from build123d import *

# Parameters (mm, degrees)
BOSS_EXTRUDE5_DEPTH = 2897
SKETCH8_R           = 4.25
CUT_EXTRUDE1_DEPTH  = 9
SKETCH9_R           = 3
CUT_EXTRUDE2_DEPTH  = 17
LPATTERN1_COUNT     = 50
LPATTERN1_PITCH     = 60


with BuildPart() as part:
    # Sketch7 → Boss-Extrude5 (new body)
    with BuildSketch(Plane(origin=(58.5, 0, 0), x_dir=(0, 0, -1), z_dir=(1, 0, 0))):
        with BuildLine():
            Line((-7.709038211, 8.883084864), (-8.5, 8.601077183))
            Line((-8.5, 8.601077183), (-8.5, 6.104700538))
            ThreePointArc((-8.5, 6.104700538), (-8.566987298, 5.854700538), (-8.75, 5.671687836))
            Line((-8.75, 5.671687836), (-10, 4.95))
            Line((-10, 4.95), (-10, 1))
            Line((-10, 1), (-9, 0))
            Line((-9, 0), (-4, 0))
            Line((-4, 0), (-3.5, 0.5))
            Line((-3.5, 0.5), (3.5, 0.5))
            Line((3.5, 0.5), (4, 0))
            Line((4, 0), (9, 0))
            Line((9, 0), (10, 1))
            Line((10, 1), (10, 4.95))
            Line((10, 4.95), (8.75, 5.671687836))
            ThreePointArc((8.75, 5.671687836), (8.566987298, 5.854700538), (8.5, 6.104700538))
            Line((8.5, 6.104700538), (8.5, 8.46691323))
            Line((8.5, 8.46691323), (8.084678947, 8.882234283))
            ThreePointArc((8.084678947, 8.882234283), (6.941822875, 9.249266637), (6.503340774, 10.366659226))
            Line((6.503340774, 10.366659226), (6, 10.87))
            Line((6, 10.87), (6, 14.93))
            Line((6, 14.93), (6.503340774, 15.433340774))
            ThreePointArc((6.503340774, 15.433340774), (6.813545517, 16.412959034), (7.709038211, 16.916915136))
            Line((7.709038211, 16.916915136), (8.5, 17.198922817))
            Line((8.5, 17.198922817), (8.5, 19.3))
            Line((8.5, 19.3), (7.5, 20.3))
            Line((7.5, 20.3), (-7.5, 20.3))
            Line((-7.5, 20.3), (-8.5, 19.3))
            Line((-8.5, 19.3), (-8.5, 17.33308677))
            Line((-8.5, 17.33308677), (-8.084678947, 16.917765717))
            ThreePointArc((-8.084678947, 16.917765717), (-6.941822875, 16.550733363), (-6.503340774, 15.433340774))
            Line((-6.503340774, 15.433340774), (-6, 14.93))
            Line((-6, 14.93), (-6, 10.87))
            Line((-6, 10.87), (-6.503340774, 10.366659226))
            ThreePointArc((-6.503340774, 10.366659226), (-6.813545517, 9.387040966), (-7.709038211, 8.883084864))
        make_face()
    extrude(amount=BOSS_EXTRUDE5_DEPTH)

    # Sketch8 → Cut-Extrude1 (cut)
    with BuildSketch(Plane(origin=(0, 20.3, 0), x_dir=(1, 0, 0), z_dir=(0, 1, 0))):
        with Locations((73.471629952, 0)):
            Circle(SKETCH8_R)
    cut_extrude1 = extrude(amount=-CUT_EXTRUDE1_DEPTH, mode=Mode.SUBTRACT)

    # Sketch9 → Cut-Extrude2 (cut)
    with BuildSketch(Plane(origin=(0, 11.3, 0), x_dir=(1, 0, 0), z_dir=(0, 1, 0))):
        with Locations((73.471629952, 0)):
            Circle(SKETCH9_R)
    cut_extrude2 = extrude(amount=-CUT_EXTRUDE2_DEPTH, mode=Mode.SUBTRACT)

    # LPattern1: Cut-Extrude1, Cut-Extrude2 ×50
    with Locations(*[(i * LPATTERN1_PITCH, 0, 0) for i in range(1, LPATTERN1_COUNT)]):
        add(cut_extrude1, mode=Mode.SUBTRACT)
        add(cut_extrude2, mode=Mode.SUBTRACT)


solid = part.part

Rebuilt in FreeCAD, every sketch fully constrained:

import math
import FreeCAD as App
import Part
import Sketcher
Q = App.Units.Quantity

doc = App.newDocument("Part")
body = doc.addObject("PartDesign::Body", "Body")

sketch1 = body.newObject("Sketcher::SketchObject", "Sketch")
sketch1.AttachmentSupport = (doc.getObject("YZ_Plane"), [""])
sketch1.MapMode = "FlatFace"
sketch1.AttachmentOffset = App.Placement(App.Vector(0, 0, 58.5), App.Rotation())
sketch1.addGeometry([
    Part.LineSegment(App.Vector(8.9, 7.7, 0), App.Vector(8.6, 8.5, 0)),
    Part.LineSegment(App.Vector(8.6, 8.5, 0), App.Vector(6.1, 8.5, 0)),
    Part.ArcOfCircle(Part.Circle(App.Vector(6.1, 9, 0), App.Vector(0, 0, 1), 0.5), math.radians(-150), math.radians(-90)),
    Part.LineSegment(App.Vector(5.7, 8.8, 0), App.Vector(5, 10, 0)),
    Part.LineSegment(App.Vector(5, 10, 0), App.Vector(1, 10, 0)),
    Part.LineSegment(App.Vector(1, 10, 0), App.Vector(0, 9, 0)),
    Part.LineSegment(App.Vector(0, 9, 0), App.Vector(0, 4, 0)),
    Part.LineSegment(App.Vector(0, 4, 0), App.Vector(0.5, 3.5, 0)),
    Part.LineSegment(App.Vector(0.5, 3.5, 0), App.Vector(0.5, -3.5, 0)),
    Part.LineSegment(App.Vector(0.5, -3.5, 0), App.Vector(0, -4, 0)),
    Part.LineSegment(App.Vector(0, -4, 0), App.Vector(0, -9, 0)),
    Part.LineSegment(App.Vector(0, -9, 0), App.Vector(1, -10, 0)),
    Part.LineSegment(App.Vector(1, -10, 0), App.Vector(5, -10, 0)),
    Part.LineSegment(App.Vector(5, -10, 0), App.Vector(5.7, -8.8, 0)),
    Part.ArcOfCircle(Part.Circle(App.Vector(6.1, -9, 0), App.Vector(0, 0, 1), 0.5), math.radians(90), math.radians(150)),
    Part.LineSegment(App.Vector(6.1, -8.5, 0), App.Vector(8.5, -8.5, 0)),
    Part.LineSegment(App.Vector(8.5, -8.5, 0), App.Vector(8.9, -8.1, 0)),
    Part.ArcOfCircle(Part.Circle(App.Vector(10.3, -7.9, 0), App.Vector(0, 0, 1), 1.4), math.radians(86), math.radians(188)),
    Part.LineSegment(App.Vector(10.4, -6.5, 0), App.Vector(10.9, -6, 0)),
    Part.LineSegment(App.Vector(10.9, -6, 0), App.Vector(14.9, -6, 0)),
    Part.LineSegment(App.Vector(14.9, -6, 0), App.Vector(15.4, -6.5, 0)),
    Part.ArcOfCircle(Part.Circle(App.Vector(15.5, -7.9, 0), App.Vector(0, 0, 1), 1.4), math.radians(8), math.radians(94)),
    Part.LineSegment(App.Vector(16.9, -7.7, 0), App.Vector(17.2, -8.5, 0)),
    Part.LineSegment(App.Vector(17.2, -8.5, 0), App.Vector(19.3, -8.5, 0)),
    Part.LineSegment(App.Vector(19.3, -8.5, 0), App.Vector(20.3, -7.5, 0)),
    Part.LineSegment(App.Vector(20.3, -7.5, 0), App.Vector(20.3, 7.5, 0)),
    Part.LineSegment(App.Vector(20.3, 7.5, 0), App.Vector(19.3, 8.5, 0)),
    Part.LineSegment(App.Vector(19.3, 8.5, 0), App.Vector(17.3, 8.5, 0)),
    Part.LineSegment(App.Vector(17.3, 8.5, 0), App.Vector(16.9, 8.1, 0)),
    Part.ArcOfCircle(Part.Circle(App.Vector(15.5, 7.9, 0), App.Vector(0, 0, 1), 1.4), math.radians(-94), math.radians(8)),
    Part.LineSegment(App.Vector(15.4, 6.5, 0), App.Vector(14.9, 6, 0)),
    Part.LineSegment(App.Vector(14.9, 6, 0), App.Vector(10.9, 6, 0)),
    Part.LineSegment(App.Vector(10.9, 6, 0), App.Vector(10.4, 6.5, 0)),
    Part.ArcOfCircle(Part.Circle(App.Vector(10.3, 7.9, 0), App.Vector(0, 0, 1), 1.4), math.radians(-172), math.radians(-86)),
], False)
sketch1.addConstraint([
    Sketcher.Constraint("Coincident", 0, 2, 1, 1),
    Sketcher.Constraint("Tangent", 1, 2, 2, 2),
    Sketcher.Constraint("Tangent", 2, 1, 3, 1),
    Sketcher.Constraint("Coincident", 3, 2, 4, 1),
    Sketcher.Constraint("Coincident", 4, 2, 5, 1),
    Sketcher.Constraint("Coincident", 5, 2, 6, 1),
    Sketcher.Constraint("Coincident", 6, 2, 7, 1),
    Sketcher.Constraint("Coincident", 7, 2, 8, 1),
    Sketcher.Constraint("Coincident", 8, 2, 9, 1),
    Sketcher.Constraint("Coincident", 9, 2, 10, 1),
    Sketcher.Constraint("Coincident", 10, 2, 11, 1),
    Sketcher.Constraint("Coincident", 11, 2, 12, 1),
    Sketcher.Constraint("Coincident", 12, 2, 13, 1),
    Sketcher.Constraint("Tangent", 13, 2, 14, 2),
    Sketcher.Constraint("Tangent", 14, 1, 15, 1),
    Sketcher.Constraint("Coincident", 15, 2, 16, 1),
    Sketcher.Constraint("Coincident", 16, 2, 17, 2),
    Sketcher.Constraint("Coincident", 17, 1, 18, 1),
    Sketcher.Constraint("Coincident", 18, 2, 19, 1),
    Sketcher.Constraint("Coincident", 19, 2, 20, 1),
    Sketcher.Constraint("Coincident", 20, 2, 21, 2),
    Sketcher.Constraint("Coincident", 21, 1, 22, 1),
    Sketcher.Constraint("Coincident", 22, 2, 23, 1),
    Sketcher.Constraint("Coincident", 23, 2, 24, 1),
    Sketcher.Constraint("Coincident", 24, 2, 25, 1),
    Sketcher.Constraint("Coincident", 25, 2, 26, 1),
    Sketcher.Constraint("Coincident", 26, 2, 27, 1),
    Sketcher.Constraint("Coincident", 27, 2, 28, 1),
    Sketcher.Constraint("Coincident", 28, 2, 29, 2),
    Sketcher.Constraint("Coincident", 29, 1, 30, 1),
    Sketcher.Constraint("Coincident", 30, 2, 31, 1),
    Sketcher.Constraint("Coincident", 31, 2, 32, 1),
    Sketcher.Constraint("Coincident", 32, 2, 33, 2),
    Sketcher.Constraint("Coincident", 33, 1, 0, 1),
    Sketcher.Constraint("Horizontal", 1),
    Sketcher.Constraint("Horizontal", 4),
    Sketcher.Constraint("Vertical", 6),
    Sketcher.Constraint("Vertical", 8),
    Sketcher.Constraint("Vertical", 10),
    Sketcher.Constraint("Horizontal", 12),
    Sketcher.Constraint("Horizontal", 15),
    Sketcher.Constraint("Horizontal", 19),
    Sketcher.Constraint("Horizontal", 23),
    Sketcher.Constraint("Vertical", 25),
    Sketcher.Constraint("Horizontal", 27),
    Sketcher.Constraint("Horizontal", 31),
    Sketcher.Constraint("Equal", 2, 14),
    Sketcher.Constraint("Equal", 17, 21),
    Sketcher.Constraint("Equal", 21, 29),
    Sketcher.Constraint("Equal", 29, 33),
    Sketcher.Constraint("Symmetric", 6, 2, 9, 2, -1, 1),
    Sketcher.Constraint("Symmetric", 2, 3, 14, 3, -1),
    Sketcher.Constraint("Symmetric", 21, 3, 29, 3, -1),
    Sketcher.Constraint("Symmetric", 17, 3, 33, 3, -1),
    Sketcher.Constraint("Symmetric", 5, 2, 10, 2, -1),
    Sketcher.Constraint("Symmetric", 4, 2, 11, 2, -1),
    Sketcher.Constraint("Symmetric", 23, 2, 26, 2, -1),
    Sketcher.Constraint("Symmetric", 19, 2, 30, 2, -1),
    Sketcher.Constraint("Perpendicular", 5, 7),
    Sketcher.Constraint("Perpendicular", 7, 9),
    Sketcher.Constraint("Perpendicular", 9, 11),
    Sketcher.Constraint("Perpendicular", 11, 16),
    Sketcher.Constraint("Parallel", 16, 18),
    Sketcher.Constraint("Perpendicular", 18, 20),
    Sketcher.Constraint("Parallel", 0, 22),
    Sketcher.Constraint("Perpendicular", 20, 24),
    Sketcher.Constraint("Perpendicular", 24, 26),
    Sketcher.Constraint("Perpendicular", 26, 28),
    Sketcher.Constraint("Parallel", 28, 30),
    Sketcher.Constraint("Perpendicular", 30, 32),
    Sketcher.Constraint("Horizontal", 17, 3, 21, 3),
    Sketcher.Constraint("Horizontal", 2, 3, 5, 2),
    Sketcher.Constraint("Horizontal", 17, 1, 20, 2),
    Sketcher.Constraint("Horizontal", 15, 2, 22, 2),
    Sketcher.Constraint("Horizontal", 29, 1, 32, 2),
    Sketcher.Constraint("Vertical", 3, 2, 12, 2),
    Sketcher.Constraint("Equal", 0, 22),
    Sketcher.Constraint("Equal", 11, 24),
    Sketcher.Constraint("Equal", 16, 28),
    Sketcher.Constraint("Radius", 2, Q("0.5 mm")),
    Sketcher.Constraint("Radius", 17, Q("1.4 mm")),
    Sketcher.Constraint("DistanceY", 6, 2, 6, 1, Q("5 mm")),
    Sketcher.Constraint("DistanceY", 8, 2, 8, 1, Q("7 mm")),
    Sketcher.Constraint("DistanceY", 25, 1, 25, 2, Q("15 mm")),
    Sketcher.Constraint("Angle", 3, Q("120 deg")),
    Sketcher.Constraint("DistanceY", -1, 1, 2, 3, Q("9 mm")),
    Sketcher.Constraint("DistanceY", 18, 2, -1, 1, Q("6 mm")),
    Sketcher.Constraint("DistanceX", 4, 2, 4, 1, Q("3.95 mm")),
    Sketcher.Constraint("DistanceX", 19, 1, 19, 2, Q("4.06 mm")),
    Sketcher.Constraint("DistanceY", 17, 3, -1, 1, Q("7.9 mm")),
    Sketcher.Constraint("DistanceX", -1, 1, 23, 2, Q("19.3 mm")),
    Sketcher.Constraint("DistanceX", 17, 3, 18, 2, Q("0.6 mm")),
    Sketcher.Constraint("DistanceX", -1, 1, 17, 3, Q("10.27 mm")),
    Sketcher.Constraint("Distance", 0, Q("0.839731 mm")),
    Sketcher.Constraint("DistanceX", 1, 2, 1, 1, Q("2.496377 mm")),
    Sketcher.Constraint("DistanceX", 15, 1, 15, 2, Q("2.362213 mm")),
])
pad1 = body.newObject("PartDesign::Pad", "Pad")
pad1.Profile = sketch1
pad1.Length = 2897

sketch2 = body.newObject("Sketcher::SketchObject", "Sketch001")
sketch2.AttachmentSupport = (doc.getObject("XZ_Plane"), [""])
sketch2.MapMode = "FlatFace"
sketch2.AttachmentOffset = App.Placement(App.Vector(0, 0, -20.3), App.Rotation())
sketch2.addGeometry(Part.Circle(App.Vector(73.5, 0, 0), App.Vector(0, 0, 1), 4.2), False)
sketch2.addConstraint([
    Sketcher.Constraint("PointOnObject", 0, 3, -1),
    Sketcher.Constraint("Diameter", 0, Q("8.5 mm")),
    Sketcher.Constraint("DistanceX", -1, 1, 0, 3, Q("73.47163 mm")),
])
pocket1 = body.newObject("PartDesign::Pocket", "Pocket")
pocket1.Profile = sketch2
pocket1.Length = 9
pocket1.Reversed = True

sketch3 = body.newObject("Sketcher::SketchObject", "Sketch002")
sketch3.AttachmentSupport = (doc.getObject("XZ_Plane"), [""])
sketch3.MapMode = "FlatFace"
sketch3.AttachmentOffset = App.Placement(App.Vector(0, 0, -11.3), App.Rotation())
sketch3.addGeometry(Part.Circle(App.Vector(73.5, 0, 0), App.Vector(0, 0, 1), 3), False)
sketch3.addConstraint([
    Sketcher.Constraint("PointOnObject", 0, 3, -1),
    Sketcher.Constraint("Diameter", 0, Q("6 mm")),
    Sketcher.Constraint("DistanceX", -1, 1, 0, 3, Q("73.47163 mm")),
])
pocket2 = body.newObject("PartDesign::Pocket", "Pocket001")
pocket2.Profile = sketch3
pocket2.Length = 17
pocket2.Reversed = True
doc.recompute()

linearpattern = body.newObject("PartDesign::LinearPattern", "LinearPattern")
linearpattern.Originals = [pocket1, pocket2]
linearpattern.Direction = (doc.getObject("X_Axis"), [""])
linearpattern.Mode = "offset"
linearpattern.Offset = 60
linearpattern.Occurrences = 50
body.Tip = linearpattern

doc.recompute()
